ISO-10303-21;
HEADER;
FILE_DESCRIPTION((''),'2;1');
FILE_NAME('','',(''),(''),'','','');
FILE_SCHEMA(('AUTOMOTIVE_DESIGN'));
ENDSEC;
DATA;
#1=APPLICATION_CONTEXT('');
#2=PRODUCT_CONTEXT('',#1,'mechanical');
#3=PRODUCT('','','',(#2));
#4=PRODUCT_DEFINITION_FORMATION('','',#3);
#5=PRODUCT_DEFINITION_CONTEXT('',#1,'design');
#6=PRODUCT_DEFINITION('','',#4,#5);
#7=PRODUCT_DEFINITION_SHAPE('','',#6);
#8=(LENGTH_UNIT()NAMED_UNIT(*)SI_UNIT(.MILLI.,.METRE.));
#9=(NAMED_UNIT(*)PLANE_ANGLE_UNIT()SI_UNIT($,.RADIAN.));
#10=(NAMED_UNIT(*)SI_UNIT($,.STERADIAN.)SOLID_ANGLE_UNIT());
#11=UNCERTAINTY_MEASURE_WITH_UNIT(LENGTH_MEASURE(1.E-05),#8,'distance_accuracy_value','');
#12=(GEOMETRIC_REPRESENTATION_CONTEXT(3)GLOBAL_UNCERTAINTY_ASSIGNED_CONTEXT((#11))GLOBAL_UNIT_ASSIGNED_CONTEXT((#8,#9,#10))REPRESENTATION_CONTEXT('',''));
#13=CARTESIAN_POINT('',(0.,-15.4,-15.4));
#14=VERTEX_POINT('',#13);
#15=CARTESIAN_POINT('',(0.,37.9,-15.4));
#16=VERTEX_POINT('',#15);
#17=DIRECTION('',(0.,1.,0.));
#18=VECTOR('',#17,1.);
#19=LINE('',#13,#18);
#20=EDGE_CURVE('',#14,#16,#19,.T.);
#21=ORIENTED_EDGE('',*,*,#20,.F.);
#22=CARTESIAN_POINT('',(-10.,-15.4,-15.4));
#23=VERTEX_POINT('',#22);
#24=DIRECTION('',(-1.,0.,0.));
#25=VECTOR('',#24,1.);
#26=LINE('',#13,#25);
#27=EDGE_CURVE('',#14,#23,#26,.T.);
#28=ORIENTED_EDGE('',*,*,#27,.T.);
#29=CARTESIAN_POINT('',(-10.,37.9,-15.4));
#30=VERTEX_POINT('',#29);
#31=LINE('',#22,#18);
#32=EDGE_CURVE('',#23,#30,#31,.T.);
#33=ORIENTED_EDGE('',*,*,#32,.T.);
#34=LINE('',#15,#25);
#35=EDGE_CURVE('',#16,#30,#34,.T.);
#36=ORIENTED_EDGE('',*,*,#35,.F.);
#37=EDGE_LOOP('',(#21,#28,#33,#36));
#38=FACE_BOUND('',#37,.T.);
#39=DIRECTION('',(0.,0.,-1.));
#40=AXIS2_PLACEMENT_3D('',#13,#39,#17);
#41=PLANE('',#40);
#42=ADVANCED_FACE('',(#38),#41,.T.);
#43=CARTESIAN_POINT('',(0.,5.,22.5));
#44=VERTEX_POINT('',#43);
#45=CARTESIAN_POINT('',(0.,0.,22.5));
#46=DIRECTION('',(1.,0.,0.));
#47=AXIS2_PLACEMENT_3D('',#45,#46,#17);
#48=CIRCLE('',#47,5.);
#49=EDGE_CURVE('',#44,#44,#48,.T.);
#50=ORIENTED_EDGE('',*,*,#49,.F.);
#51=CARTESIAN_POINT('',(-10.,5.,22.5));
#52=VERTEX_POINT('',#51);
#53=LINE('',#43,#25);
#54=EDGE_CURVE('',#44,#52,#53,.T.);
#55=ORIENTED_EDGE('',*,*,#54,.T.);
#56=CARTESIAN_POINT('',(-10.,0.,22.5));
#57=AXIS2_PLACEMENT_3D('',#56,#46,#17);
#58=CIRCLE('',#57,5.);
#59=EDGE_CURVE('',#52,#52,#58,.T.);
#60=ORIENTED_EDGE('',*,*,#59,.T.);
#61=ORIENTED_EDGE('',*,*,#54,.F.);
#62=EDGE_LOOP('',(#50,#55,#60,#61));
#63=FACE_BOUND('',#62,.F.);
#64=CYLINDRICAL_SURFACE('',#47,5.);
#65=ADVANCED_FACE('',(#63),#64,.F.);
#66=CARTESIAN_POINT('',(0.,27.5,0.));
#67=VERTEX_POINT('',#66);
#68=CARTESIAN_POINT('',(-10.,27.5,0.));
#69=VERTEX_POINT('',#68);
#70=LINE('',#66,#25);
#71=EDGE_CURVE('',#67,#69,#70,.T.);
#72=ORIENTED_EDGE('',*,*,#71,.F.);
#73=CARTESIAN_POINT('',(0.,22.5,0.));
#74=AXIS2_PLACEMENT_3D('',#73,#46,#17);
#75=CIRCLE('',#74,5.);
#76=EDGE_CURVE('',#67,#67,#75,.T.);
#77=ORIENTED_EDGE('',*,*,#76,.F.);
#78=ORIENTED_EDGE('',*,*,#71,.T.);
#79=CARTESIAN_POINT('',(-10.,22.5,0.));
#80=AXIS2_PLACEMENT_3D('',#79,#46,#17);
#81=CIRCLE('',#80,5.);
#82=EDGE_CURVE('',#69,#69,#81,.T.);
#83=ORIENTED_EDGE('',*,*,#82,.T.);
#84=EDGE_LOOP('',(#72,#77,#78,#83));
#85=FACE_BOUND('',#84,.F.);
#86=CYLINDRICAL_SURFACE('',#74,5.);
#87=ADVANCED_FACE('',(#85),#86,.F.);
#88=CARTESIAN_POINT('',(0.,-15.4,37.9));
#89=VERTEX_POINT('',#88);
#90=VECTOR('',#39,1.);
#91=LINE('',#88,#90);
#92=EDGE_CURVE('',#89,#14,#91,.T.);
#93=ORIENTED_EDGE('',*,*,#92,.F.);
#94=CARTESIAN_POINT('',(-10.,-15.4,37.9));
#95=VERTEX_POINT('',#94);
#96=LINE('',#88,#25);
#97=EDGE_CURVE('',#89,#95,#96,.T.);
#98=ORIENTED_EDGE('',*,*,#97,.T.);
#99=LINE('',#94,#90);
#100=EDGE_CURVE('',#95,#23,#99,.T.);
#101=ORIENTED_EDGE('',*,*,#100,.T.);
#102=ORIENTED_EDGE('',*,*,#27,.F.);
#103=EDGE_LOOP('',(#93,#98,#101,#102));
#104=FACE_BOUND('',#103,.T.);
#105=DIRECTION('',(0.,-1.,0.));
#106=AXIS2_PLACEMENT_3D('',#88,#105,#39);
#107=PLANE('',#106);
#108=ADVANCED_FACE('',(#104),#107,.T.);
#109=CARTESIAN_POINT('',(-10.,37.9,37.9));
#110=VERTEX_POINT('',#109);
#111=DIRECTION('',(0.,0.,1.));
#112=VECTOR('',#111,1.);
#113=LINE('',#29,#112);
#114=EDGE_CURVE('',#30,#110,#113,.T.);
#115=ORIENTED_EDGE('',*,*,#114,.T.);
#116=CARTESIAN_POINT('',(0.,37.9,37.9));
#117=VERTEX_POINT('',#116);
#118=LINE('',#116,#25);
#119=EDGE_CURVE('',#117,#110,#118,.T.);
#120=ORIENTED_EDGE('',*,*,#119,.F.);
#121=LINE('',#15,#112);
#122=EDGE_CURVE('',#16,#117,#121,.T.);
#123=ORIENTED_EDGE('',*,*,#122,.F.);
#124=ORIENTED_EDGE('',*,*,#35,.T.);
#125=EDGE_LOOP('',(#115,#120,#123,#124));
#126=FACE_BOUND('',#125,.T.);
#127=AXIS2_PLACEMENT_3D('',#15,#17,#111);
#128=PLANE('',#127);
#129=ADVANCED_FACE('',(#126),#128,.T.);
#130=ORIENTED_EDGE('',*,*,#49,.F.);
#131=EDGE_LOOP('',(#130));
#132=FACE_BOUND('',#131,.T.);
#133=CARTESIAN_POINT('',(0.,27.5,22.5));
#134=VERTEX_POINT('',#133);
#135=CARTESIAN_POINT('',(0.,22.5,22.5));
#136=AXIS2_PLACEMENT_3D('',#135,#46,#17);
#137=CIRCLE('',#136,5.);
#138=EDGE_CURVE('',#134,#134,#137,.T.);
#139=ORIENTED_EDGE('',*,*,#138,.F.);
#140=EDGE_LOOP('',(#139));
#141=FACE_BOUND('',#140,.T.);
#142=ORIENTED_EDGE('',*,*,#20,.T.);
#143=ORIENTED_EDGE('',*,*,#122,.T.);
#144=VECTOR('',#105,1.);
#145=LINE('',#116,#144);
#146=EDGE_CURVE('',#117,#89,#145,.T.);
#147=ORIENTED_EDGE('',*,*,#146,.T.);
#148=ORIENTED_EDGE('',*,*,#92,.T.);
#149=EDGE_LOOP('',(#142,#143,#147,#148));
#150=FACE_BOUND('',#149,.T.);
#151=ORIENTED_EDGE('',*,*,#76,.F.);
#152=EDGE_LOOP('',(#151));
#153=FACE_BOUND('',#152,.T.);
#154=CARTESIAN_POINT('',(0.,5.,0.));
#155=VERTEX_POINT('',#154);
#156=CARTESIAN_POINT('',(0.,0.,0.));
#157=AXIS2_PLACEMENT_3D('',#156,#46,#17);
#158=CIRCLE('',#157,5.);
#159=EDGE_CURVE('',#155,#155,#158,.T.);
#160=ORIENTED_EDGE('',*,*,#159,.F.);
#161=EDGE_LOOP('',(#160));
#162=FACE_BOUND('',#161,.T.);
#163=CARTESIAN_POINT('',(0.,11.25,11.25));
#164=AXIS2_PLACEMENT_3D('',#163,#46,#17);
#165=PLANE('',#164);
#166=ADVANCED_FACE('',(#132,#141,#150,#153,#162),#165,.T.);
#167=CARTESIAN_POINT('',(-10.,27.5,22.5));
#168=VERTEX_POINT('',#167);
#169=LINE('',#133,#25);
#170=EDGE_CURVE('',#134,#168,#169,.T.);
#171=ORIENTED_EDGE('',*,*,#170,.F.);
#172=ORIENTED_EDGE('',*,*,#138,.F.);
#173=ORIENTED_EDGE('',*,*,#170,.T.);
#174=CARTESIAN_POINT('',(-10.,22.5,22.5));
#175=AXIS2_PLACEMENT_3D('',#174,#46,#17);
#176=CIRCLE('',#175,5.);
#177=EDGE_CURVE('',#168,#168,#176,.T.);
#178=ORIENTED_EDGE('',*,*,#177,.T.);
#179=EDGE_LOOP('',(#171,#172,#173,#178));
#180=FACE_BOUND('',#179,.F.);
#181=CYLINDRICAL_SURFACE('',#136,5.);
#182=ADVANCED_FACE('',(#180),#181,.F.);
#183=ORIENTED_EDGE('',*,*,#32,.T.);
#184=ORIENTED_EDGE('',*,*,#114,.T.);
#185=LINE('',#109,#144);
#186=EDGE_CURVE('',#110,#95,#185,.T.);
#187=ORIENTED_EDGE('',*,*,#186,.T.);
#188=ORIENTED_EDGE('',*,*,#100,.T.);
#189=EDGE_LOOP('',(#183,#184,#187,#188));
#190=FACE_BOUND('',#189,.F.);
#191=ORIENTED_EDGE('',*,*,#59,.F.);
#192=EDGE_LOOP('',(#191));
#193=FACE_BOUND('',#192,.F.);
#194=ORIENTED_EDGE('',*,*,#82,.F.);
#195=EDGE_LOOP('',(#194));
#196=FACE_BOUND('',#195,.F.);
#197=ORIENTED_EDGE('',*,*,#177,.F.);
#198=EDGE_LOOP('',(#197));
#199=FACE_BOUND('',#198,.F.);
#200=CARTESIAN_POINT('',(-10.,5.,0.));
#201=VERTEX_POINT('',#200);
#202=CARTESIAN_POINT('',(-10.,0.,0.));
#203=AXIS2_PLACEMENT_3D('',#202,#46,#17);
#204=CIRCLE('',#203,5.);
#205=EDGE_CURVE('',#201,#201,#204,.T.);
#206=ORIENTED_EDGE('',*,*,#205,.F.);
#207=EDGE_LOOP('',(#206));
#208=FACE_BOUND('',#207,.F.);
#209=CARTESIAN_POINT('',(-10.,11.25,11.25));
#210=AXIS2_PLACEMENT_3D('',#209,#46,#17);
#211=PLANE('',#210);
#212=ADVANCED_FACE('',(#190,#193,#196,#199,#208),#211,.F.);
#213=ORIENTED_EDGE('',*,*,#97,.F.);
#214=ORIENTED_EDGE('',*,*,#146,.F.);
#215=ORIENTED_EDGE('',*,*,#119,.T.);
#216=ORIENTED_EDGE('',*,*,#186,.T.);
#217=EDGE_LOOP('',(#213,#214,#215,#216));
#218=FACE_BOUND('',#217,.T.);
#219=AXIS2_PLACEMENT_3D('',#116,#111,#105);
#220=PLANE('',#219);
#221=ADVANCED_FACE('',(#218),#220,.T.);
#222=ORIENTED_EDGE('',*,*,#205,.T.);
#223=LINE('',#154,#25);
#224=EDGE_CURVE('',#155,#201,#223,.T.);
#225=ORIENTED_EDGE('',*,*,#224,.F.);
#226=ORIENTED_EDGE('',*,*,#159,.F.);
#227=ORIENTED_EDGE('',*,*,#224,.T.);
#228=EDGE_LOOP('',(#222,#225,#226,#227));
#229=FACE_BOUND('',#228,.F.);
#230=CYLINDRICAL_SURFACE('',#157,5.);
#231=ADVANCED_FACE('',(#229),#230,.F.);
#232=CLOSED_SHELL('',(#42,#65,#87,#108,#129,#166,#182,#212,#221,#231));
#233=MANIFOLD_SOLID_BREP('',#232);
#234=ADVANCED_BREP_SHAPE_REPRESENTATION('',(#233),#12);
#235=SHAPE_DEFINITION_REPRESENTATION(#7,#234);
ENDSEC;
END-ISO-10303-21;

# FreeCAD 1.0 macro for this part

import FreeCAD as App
import Part
import Sketcher
Q = App.Units.Quantity


def add_polygon(sketch, points):
    """Adds a closed chain of lines whose ends are joined by coincident constraints."""
    first, n = sketch.GeometryCount, len(points)
    for a, b in zip(points, points[1:] + points[:1]):
        sketch.addGeometry(Part.LineSegment(App.Vector(*a, 0), App.Vector(*b, 0)), False)
    for i in range(n):
        sketch.addConstraint(Sketcher.Constraint("Coincident", first + i, 2, first + (i + 1) % n, 1))

doc = App.newDocument("Part")
body = doc.addObject("PartDesign::Body", "Body")

# Sketch on YZ plane
sketch1 = doc.addObject("Sketcher::SketchObject", "Sketch")
body.addObject(sketch1)
sketch1.AttachmentSupport = (doc.YZ_Plane, [""])
sketch1.MapMode = "FlatFace"
add_polygon(sketch1, [(-15, 38), (-15, -15), (38, -15), (38, 38)])  # lines 0-3
sketch1.addGeometry(Part.Circle(App.Vector(0, 0, 0), App.Vector(0, 0, 1), 5), False)  # 4
sketch1.addGeometry(Part.Circle(App.Vector(22, 0, 0), App.Vector(0, 0, 1), 5), False)  # 5
sketch1.addGeometry(Part.Circle(App.Vector(0, 22, 0), App.Vector(0, 0, 1), 5), False)  # 6
sketch1.addGeometry(Part.Circle(App.Vector(22, 22, 0), App.Vector(0, 0, 1), 5), False)  # 7
sketch1.addConstraint(Sketcher.Constraint("Vertical", 0))
sketch1.addConstraint(Sketcher.Constraint("Horizontal", 1))
sketch1.addConstraint(Sketcher.Constraint("Vertical", 2))
sketch1.addConstraint(Sketcher.Constraint("Horizontal", 3))
sketch1.addConstraint(Sketcher.Constraint("Coincident", 4, 3, -1, 1))
sketch1.addConstraint(Sketcher.Constraint("Equal", 4, 5))
sketch1.addConstraint(Sketcher.Constraint("Equal", 5, 6))
sketch1.addConstraint(Sketcher.Constraint("Equal", 6, 7))
sketch1.addConstraint(Sketcher.Constraint("PointOnObject", 5, 3, -1))
sketch1.addConstraint(Sketcher.Constraint("PointOnObject", 6, 3, -2))
sketch1.addConstraint(Sketcher.Constraint("Horizontal", 6, 3, 7, 3))
sketch1.addConstraint(Sketcher.Constraint("Vertical", 5, 3, 7, 3))
sketch1.addConstraint(Sketcher.Constraint("Equal", 3, 0))
sketch1.addConstraint(Sketcher.Constraint("Diameter", 4, Q("10 mm")))
sketch1.addConstraint(Sketcher.Constraint("DistanceX", 1, 1, 1, 2, Q("53.3 mm")))
sketch1.addConstraint(Sketcher.Constraint("DistanceX", -1, 1, 5, 3, Q("22.5 mm")))
sketch1.addConstraint(Sketcher.Constraint("DistanceY", -1, 1, 6, 3, Q("22.5 mm")))
sketch1.addConstraint(Sketcher.Constraint("DistanceX", 0, 2, -1, 1, Q("15.4 mm")))
sketch1.addConstraint(Sketcher.Constraint("DistanceY", 0, 2, -1, 1, Q("15.4 mm")))
pad1 = doc.addObject("PartDesign::Pad", "Pad")
body.addObject(pad1)
pad1.Profile = sketch1
pad1.Length = 10
pad1.Reversed = True

doc.recompute()
